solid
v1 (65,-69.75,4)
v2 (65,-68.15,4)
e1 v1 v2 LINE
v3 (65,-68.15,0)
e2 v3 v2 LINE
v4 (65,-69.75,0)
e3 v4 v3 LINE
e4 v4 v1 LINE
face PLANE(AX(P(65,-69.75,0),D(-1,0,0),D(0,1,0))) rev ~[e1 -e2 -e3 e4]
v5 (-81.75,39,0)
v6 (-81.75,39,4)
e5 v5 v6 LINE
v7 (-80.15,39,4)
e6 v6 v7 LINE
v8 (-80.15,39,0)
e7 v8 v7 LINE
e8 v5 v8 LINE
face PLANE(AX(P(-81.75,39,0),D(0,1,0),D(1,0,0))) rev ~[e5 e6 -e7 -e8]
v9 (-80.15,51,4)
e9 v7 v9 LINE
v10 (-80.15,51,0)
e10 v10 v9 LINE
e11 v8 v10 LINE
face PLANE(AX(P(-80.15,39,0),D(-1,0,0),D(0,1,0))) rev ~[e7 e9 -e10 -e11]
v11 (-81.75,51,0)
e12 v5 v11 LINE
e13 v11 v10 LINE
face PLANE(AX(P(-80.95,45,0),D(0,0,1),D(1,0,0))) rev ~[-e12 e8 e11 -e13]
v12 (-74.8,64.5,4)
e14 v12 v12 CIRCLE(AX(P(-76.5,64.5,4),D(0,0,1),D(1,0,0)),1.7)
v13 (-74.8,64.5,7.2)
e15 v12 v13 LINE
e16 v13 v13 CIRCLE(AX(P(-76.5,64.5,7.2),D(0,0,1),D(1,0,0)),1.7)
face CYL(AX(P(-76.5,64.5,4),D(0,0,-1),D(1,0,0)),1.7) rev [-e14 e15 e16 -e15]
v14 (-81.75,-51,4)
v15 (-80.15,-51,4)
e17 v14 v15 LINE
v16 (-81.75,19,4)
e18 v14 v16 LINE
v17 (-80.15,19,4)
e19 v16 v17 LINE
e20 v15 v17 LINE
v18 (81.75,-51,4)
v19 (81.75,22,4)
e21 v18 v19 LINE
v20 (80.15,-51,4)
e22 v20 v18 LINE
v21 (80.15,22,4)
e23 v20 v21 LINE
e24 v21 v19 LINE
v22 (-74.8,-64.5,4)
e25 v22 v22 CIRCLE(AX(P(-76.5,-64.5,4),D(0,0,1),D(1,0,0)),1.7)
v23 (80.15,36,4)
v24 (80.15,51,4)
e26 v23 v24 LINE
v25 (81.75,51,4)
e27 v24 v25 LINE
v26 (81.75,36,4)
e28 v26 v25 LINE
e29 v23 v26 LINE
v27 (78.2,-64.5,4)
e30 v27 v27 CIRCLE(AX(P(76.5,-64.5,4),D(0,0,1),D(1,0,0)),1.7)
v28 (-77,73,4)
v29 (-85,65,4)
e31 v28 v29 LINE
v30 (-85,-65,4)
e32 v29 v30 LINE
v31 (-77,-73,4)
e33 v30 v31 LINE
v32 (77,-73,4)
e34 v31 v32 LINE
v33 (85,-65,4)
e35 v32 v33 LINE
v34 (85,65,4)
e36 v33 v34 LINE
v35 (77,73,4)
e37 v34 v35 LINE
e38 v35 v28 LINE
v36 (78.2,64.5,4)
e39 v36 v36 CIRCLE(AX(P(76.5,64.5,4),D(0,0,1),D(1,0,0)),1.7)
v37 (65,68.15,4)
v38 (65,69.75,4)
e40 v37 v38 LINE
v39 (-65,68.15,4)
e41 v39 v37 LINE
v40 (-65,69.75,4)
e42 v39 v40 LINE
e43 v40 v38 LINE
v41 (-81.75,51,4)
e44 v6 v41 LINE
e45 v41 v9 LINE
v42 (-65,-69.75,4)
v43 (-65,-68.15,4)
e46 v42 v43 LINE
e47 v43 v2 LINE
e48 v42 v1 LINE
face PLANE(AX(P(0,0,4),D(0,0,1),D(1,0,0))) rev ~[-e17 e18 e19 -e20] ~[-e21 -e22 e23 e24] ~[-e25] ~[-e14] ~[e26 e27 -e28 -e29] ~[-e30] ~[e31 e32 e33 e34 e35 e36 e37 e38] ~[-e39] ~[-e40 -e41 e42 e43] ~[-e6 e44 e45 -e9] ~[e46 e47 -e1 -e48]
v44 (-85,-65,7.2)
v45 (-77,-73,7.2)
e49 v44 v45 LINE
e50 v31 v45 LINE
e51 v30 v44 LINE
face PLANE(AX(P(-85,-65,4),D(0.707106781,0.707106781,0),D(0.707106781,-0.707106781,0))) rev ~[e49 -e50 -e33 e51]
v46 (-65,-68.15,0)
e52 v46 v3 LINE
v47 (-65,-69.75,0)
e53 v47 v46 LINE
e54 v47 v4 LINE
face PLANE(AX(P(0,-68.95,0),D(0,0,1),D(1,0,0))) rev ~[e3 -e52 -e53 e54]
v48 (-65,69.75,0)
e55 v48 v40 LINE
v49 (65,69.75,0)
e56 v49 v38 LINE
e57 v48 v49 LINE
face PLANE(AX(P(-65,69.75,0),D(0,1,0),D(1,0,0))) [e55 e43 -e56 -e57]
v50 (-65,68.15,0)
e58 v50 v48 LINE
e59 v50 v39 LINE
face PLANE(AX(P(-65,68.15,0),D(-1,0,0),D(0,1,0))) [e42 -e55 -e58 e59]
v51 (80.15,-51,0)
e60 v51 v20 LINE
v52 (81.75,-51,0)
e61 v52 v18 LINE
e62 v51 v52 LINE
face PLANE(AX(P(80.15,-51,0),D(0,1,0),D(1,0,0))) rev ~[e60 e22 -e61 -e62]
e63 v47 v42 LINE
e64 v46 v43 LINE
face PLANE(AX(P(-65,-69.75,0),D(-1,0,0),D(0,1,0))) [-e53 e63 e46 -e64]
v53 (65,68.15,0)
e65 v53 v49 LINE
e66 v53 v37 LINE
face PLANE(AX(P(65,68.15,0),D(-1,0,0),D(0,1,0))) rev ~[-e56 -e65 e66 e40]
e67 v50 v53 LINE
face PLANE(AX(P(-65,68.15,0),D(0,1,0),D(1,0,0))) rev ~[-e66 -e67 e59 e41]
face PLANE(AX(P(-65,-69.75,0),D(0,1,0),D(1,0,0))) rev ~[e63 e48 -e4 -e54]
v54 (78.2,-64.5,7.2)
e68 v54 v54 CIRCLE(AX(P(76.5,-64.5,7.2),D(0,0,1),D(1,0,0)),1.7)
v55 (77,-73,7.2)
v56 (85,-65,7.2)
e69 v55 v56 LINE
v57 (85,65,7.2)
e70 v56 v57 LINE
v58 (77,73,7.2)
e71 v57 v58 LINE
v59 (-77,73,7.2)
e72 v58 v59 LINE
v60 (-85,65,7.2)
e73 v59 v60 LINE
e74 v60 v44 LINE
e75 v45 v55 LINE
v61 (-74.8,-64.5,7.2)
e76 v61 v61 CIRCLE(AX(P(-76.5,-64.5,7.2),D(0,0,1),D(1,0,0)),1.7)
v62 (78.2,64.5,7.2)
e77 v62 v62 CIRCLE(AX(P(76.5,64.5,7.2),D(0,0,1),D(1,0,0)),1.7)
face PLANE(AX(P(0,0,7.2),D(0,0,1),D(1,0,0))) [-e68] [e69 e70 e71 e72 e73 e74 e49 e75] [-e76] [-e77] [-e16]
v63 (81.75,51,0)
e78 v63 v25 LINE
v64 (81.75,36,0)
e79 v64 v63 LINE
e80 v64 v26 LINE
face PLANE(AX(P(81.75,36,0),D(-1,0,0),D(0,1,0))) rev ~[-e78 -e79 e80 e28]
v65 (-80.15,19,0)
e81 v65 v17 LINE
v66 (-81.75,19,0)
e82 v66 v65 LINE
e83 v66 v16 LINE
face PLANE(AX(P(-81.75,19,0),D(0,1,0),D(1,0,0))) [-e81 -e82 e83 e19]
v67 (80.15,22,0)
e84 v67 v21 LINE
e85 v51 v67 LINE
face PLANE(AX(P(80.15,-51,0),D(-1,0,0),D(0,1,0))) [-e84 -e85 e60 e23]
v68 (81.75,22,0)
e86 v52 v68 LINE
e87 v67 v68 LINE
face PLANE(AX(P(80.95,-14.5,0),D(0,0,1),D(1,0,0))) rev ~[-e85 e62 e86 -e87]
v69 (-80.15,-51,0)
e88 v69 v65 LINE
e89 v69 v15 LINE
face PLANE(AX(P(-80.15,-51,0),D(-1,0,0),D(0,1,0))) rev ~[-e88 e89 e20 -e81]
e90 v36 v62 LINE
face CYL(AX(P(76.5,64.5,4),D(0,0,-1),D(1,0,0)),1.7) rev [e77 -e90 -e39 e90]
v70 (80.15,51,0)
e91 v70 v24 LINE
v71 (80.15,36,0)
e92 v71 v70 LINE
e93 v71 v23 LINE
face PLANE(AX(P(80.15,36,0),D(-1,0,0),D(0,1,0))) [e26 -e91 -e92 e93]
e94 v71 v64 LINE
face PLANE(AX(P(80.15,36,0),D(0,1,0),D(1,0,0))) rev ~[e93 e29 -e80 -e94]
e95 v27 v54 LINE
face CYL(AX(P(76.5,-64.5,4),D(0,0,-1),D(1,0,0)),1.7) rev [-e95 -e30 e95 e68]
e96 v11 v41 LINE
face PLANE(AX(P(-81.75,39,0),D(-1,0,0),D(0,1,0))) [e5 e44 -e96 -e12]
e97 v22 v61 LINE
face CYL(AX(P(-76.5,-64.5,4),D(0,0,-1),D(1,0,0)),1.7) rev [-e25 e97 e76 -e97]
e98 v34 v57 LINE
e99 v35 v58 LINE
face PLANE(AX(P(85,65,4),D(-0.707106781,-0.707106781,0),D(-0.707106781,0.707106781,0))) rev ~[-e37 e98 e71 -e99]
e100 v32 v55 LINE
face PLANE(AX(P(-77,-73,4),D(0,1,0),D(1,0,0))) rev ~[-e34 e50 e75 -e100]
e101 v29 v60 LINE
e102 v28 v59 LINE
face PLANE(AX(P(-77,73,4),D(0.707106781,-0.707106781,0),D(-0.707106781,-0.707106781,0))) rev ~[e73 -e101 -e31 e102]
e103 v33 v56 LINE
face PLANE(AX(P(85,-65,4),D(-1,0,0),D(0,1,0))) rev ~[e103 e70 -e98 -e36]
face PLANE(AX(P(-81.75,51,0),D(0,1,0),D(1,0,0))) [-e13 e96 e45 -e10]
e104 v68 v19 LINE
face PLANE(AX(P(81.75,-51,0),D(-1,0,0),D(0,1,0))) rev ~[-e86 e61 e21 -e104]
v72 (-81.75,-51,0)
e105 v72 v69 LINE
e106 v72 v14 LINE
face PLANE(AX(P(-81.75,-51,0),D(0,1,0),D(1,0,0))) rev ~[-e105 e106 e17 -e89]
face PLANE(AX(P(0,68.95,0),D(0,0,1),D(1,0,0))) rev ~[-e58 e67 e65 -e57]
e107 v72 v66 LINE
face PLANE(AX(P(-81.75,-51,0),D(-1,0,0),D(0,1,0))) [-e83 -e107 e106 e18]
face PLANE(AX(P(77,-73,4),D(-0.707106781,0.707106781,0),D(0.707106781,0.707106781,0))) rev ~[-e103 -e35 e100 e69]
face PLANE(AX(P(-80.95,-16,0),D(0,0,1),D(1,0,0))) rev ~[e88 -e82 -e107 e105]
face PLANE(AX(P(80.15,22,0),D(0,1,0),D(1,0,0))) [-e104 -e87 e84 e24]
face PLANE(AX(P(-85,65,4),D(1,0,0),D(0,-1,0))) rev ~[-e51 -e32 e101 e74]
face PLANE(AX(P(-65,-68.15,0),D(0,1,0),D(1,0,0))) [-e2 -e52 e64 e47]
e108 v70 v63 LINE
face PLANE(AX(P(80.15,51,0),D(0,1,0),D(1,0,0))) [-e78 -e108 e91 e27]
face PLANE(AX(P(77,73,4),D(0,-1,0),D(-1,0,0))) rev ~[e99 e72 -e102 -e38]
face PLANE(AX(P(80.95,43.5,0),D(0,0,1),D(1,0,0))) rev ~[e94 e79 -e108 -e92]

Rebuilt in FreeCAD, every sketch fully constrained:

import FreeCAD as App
import Part
import Sketcher


def add_polygon(sketch, points):
    """Adds a closed chain of lines whose ends are joined by coincident constraints."""
    first, n = sketch.GeometryCount, len(points)
    for a, b in zip(points, points[1:] + points[:1]):
        sketch.addGeometry(Part.LineSegment(App.Vector(*a, 0), App.Vector(*b, 0)), False)
    for i in range(n):
        sketch.addConstraint(Sketcher.Constraint("Coincident", first + i, 2, first + (i + 1) % n, 1))

doc = App.newDocument("Part")
body = doc.addObject("PartDesign::Body", "Body")

# Sketch on XY plane
sketch1 = body.newObject("Sketcher::SketchObject", "Sketch")
sketch1.AttachmentSupport = (doc.getObject("XY_Plane"), [""])
sketch1.MapMode = "FlatFace"
sketch1.AttachmentOffset = App.Placement(App.Vector(0, 0, 4), App.Rotation())
add_polygon(sketch1, [(-77, -73), (77, -73), (85, -65), (85, 65), (77, 73), (-77, 73), (-85, 65), (-85, -65)])  # lines 0-7
sketch1.addGeometry(Part.Circle(App.Vector(-76.5, -64.5, 0), App.Vector(0, 0, 1), 1.7), False)  # 8
sketch1.addGeometry(Part.Circle(App.Vector(76.5, -64.5, 0), App.Vector(0, 0, 1), 1.7), False)  # 9
sketch1.addGeometry(Part.Circle(App.Vector(-76.5, 64.5, 0), App.Vector(0, 0, 1), 1.7), False)  # 10
sketch1.addGeometry(Part.Circle(App.Vector(76.5, 64.5, 0), App.Vector(0, 0, 1), 1.7), False)  # 11
sketch1.addConstraint([
    Sketcher.Constraint("Horizontal", 0),
    Sketcher.Constraint("Vertical", 2),
    Sketcher.Constraint("Horizontal", 4),
    Sketcher.Constraint("Vertical", 6),
    Sketcher.Constraint("Equal", 8, 9),
    Sketcher.Constraint("Equal", 9, 10),
    Sketcher.Constraint("Equal", 10, 11),
    Sketcher.Constraint("Symmetric", 9, 3, 10, 3, -1, 1),
    Sketcher.Constraint("Symmetric", 8, 3, 11, 3, -1, 1),
    Sketcher.Constraint("Symmetric", 0, 2, 4, 2, -1, 1),
    Sketcher.Constraint("Symmetric", 1, 2, 5, 2, -1, 1),
    Sketcher.Constraint("Symmetric", 8, 3, 9, 3, -2),
    Sketcher.Constraint("Perpendicular", 1, 3),
    Sketcher.Constraint("Perpendicular", 5, 7),
    Sketcher.Constraint("Horizontal", 2, 2, 5, 2),
    Sketcher.Constraint("Horizontal", 1, 2, 6, 2),
    Sketcher.Constraint("Vertical", 0, 2, 3, 2),
    Sketcher.Constraint("Diameter", 8, 3.4),
    Sketcher.Constraint("DistanceX", 0, 1, 0, 2, 154.0),
    Sketcher.Constraint("DistanceY", 2, 1, 2, 2, 130.0),
    Sketcher.Constraint("DistanceY", 0, 2, -1, 1, 73.0),
    Sketcher.Constraint("DistanceX", 8, 3, 9, 3, 153.0),
    Sketcher.Constraint("DistanceY", 8, 3, 10, 3, 129.0),
])
pad1 = body.newObject("PartDesign::Pad", "Pad")
pad1.Profile = sketch1
pad1.Length = 3.2

# Sketch on XY plane
sketch2 = body.newObject("Sketcher::SketchObject", "Sketch001")
sketch2.AttachmentSupport = (doc.getObject("XY_Plane"), [""])
sketch2.MapMode = "FlatFace"
add_polygon(sketch2, [(-65, -68.2), (-65, -69.8), (65, -69.8), (65, -68.2)])  # lines 0-3
add_polygon(sketch2, [(-65, 69.8), (-65, 68.2), (65, 68.2), (65, 69.8)])  # lines 4-7
add_polygon(sketch2, [(-81.8, 19), (-81.8, -51), (-80.2, -51), (-80.2, 19)])  # lines 8-11
add_polygon(sketch2, [(-81.8, 51), (-81.8, 39), (-80.2, 39), (-80.2, 51)])  # lines 12-15
add_polygon(sketch2, [(80.2, 22), (80.2, -51), (81.8, -51), (81.8, 22)])  # lines 16-19
add_polygon(sketch2, [(80.2, 51), (80.2, 36), (81.8, 36), (81.8, 51)])  # lines 20-23
sketch2.addConstraint([
    Sketcher.Constraint("Vertical", 0),
    Sketcher.Constraint("Horizontal", 1),
    Sketcher.Constraint("Vertical", 2),
    Sketcher.Constraint("Horizontal", 3),
    Sketcher.Constraint("Vertical", 4),
    Sketcher.Constraint("Horizontal", 5),
    Sketcher.Constraint("Vertical", 6),
    Sketcher.Constraint("Horizontal", 7),
    Sketcher.Constraint("Vertical", 8),
    Sketcher.Constraint("Horizontal", 9),
    Sketcher.Constraint("Vertical", 10),
    Sketcher.Constraint("Horizontal", 11),
    Sketcher.Constraint("Vertical", 12),
    Sketcher.Constraint("Horizontal", 13),
    Sketcher.Constraint("Vertical", 14),
    Sketcher.Constraint("Horizontal", 15),
    Sketcher.Constraint("Vertical", 16),
    Sketcher.Constraint("Horizontal", 17),
    Sketcher.Constraint("Vertical", 18),
    Sketcher.Constraint("Horizontal", 19),
    Sketcher.Constraint("Vertical", 20),
    Sketcher.Constraint("Horizontal", 21),
    Sketcher.Constraint("Vertical", 22),
    Sketcher.Constraint("Horizontal", 23),
    Sketcher.Constraint("Symmetric", 2, 2, 4, 2, -1, 1),
    Sketcher.Constraint("Symmetric", 0, 2, 6, 2, -1, 1),
    Sketcher.Constraint("Symmetric", 14, 2, 16, 2, -1, 1),
    Sketcher.Constraint("Symmetric", 8, 2, 22, 2, -1, 1),
    Sketcher.Constraint("Symmetric", 9, 2, 16, 2, -2),
    Sketcher.Constraint("Vertical", 3, 2, 4, 2),
    Sketcher.Constraint("Vertical", 11, 2, 12, 2),
    Sketcher.Constraint("Vertical", 19, 2, 20, 2),
    Sketcher.Constraint("Vertical", 18, 2, 21, 2),
    Sketcher.Constraint("Equal", 23, 0),
    Sketcher.Constraint("DistanceX", 1, 1, 1, 2, 130.0),
    Sketcher.Constraint("DistanceY", 8, 2, 8, 1, 70.0),
    Sketcher.Constraint("DistanceY", 12, 2, 12, 1, 12.0),
    Sketcher.Constraint("DistanceY", 16, 2, 16, 1, 73.0),
    Sketcher.Constraint("DistanceY", 20, 2, 20, 1, 15.0),
    Sketcher.Constraint("DistanceX", 9, 1, 9, 2, 1.6),
    Sketcher.Constraint("DistanceY", 8, 2, -1, 1, 51.0),
    Sketcher.Constraint("DistanceY", 3, 2, 4, 2, 136.3),
    Sketcher.Constraint("DistanceX", 8, 2, -1, 1, 81.75),
])
pad2 = body.newObject("PartDesign::Pad", "Pad001")
pad2.Profile = sketch2
pad2.Length = 4

doc.recompute()
